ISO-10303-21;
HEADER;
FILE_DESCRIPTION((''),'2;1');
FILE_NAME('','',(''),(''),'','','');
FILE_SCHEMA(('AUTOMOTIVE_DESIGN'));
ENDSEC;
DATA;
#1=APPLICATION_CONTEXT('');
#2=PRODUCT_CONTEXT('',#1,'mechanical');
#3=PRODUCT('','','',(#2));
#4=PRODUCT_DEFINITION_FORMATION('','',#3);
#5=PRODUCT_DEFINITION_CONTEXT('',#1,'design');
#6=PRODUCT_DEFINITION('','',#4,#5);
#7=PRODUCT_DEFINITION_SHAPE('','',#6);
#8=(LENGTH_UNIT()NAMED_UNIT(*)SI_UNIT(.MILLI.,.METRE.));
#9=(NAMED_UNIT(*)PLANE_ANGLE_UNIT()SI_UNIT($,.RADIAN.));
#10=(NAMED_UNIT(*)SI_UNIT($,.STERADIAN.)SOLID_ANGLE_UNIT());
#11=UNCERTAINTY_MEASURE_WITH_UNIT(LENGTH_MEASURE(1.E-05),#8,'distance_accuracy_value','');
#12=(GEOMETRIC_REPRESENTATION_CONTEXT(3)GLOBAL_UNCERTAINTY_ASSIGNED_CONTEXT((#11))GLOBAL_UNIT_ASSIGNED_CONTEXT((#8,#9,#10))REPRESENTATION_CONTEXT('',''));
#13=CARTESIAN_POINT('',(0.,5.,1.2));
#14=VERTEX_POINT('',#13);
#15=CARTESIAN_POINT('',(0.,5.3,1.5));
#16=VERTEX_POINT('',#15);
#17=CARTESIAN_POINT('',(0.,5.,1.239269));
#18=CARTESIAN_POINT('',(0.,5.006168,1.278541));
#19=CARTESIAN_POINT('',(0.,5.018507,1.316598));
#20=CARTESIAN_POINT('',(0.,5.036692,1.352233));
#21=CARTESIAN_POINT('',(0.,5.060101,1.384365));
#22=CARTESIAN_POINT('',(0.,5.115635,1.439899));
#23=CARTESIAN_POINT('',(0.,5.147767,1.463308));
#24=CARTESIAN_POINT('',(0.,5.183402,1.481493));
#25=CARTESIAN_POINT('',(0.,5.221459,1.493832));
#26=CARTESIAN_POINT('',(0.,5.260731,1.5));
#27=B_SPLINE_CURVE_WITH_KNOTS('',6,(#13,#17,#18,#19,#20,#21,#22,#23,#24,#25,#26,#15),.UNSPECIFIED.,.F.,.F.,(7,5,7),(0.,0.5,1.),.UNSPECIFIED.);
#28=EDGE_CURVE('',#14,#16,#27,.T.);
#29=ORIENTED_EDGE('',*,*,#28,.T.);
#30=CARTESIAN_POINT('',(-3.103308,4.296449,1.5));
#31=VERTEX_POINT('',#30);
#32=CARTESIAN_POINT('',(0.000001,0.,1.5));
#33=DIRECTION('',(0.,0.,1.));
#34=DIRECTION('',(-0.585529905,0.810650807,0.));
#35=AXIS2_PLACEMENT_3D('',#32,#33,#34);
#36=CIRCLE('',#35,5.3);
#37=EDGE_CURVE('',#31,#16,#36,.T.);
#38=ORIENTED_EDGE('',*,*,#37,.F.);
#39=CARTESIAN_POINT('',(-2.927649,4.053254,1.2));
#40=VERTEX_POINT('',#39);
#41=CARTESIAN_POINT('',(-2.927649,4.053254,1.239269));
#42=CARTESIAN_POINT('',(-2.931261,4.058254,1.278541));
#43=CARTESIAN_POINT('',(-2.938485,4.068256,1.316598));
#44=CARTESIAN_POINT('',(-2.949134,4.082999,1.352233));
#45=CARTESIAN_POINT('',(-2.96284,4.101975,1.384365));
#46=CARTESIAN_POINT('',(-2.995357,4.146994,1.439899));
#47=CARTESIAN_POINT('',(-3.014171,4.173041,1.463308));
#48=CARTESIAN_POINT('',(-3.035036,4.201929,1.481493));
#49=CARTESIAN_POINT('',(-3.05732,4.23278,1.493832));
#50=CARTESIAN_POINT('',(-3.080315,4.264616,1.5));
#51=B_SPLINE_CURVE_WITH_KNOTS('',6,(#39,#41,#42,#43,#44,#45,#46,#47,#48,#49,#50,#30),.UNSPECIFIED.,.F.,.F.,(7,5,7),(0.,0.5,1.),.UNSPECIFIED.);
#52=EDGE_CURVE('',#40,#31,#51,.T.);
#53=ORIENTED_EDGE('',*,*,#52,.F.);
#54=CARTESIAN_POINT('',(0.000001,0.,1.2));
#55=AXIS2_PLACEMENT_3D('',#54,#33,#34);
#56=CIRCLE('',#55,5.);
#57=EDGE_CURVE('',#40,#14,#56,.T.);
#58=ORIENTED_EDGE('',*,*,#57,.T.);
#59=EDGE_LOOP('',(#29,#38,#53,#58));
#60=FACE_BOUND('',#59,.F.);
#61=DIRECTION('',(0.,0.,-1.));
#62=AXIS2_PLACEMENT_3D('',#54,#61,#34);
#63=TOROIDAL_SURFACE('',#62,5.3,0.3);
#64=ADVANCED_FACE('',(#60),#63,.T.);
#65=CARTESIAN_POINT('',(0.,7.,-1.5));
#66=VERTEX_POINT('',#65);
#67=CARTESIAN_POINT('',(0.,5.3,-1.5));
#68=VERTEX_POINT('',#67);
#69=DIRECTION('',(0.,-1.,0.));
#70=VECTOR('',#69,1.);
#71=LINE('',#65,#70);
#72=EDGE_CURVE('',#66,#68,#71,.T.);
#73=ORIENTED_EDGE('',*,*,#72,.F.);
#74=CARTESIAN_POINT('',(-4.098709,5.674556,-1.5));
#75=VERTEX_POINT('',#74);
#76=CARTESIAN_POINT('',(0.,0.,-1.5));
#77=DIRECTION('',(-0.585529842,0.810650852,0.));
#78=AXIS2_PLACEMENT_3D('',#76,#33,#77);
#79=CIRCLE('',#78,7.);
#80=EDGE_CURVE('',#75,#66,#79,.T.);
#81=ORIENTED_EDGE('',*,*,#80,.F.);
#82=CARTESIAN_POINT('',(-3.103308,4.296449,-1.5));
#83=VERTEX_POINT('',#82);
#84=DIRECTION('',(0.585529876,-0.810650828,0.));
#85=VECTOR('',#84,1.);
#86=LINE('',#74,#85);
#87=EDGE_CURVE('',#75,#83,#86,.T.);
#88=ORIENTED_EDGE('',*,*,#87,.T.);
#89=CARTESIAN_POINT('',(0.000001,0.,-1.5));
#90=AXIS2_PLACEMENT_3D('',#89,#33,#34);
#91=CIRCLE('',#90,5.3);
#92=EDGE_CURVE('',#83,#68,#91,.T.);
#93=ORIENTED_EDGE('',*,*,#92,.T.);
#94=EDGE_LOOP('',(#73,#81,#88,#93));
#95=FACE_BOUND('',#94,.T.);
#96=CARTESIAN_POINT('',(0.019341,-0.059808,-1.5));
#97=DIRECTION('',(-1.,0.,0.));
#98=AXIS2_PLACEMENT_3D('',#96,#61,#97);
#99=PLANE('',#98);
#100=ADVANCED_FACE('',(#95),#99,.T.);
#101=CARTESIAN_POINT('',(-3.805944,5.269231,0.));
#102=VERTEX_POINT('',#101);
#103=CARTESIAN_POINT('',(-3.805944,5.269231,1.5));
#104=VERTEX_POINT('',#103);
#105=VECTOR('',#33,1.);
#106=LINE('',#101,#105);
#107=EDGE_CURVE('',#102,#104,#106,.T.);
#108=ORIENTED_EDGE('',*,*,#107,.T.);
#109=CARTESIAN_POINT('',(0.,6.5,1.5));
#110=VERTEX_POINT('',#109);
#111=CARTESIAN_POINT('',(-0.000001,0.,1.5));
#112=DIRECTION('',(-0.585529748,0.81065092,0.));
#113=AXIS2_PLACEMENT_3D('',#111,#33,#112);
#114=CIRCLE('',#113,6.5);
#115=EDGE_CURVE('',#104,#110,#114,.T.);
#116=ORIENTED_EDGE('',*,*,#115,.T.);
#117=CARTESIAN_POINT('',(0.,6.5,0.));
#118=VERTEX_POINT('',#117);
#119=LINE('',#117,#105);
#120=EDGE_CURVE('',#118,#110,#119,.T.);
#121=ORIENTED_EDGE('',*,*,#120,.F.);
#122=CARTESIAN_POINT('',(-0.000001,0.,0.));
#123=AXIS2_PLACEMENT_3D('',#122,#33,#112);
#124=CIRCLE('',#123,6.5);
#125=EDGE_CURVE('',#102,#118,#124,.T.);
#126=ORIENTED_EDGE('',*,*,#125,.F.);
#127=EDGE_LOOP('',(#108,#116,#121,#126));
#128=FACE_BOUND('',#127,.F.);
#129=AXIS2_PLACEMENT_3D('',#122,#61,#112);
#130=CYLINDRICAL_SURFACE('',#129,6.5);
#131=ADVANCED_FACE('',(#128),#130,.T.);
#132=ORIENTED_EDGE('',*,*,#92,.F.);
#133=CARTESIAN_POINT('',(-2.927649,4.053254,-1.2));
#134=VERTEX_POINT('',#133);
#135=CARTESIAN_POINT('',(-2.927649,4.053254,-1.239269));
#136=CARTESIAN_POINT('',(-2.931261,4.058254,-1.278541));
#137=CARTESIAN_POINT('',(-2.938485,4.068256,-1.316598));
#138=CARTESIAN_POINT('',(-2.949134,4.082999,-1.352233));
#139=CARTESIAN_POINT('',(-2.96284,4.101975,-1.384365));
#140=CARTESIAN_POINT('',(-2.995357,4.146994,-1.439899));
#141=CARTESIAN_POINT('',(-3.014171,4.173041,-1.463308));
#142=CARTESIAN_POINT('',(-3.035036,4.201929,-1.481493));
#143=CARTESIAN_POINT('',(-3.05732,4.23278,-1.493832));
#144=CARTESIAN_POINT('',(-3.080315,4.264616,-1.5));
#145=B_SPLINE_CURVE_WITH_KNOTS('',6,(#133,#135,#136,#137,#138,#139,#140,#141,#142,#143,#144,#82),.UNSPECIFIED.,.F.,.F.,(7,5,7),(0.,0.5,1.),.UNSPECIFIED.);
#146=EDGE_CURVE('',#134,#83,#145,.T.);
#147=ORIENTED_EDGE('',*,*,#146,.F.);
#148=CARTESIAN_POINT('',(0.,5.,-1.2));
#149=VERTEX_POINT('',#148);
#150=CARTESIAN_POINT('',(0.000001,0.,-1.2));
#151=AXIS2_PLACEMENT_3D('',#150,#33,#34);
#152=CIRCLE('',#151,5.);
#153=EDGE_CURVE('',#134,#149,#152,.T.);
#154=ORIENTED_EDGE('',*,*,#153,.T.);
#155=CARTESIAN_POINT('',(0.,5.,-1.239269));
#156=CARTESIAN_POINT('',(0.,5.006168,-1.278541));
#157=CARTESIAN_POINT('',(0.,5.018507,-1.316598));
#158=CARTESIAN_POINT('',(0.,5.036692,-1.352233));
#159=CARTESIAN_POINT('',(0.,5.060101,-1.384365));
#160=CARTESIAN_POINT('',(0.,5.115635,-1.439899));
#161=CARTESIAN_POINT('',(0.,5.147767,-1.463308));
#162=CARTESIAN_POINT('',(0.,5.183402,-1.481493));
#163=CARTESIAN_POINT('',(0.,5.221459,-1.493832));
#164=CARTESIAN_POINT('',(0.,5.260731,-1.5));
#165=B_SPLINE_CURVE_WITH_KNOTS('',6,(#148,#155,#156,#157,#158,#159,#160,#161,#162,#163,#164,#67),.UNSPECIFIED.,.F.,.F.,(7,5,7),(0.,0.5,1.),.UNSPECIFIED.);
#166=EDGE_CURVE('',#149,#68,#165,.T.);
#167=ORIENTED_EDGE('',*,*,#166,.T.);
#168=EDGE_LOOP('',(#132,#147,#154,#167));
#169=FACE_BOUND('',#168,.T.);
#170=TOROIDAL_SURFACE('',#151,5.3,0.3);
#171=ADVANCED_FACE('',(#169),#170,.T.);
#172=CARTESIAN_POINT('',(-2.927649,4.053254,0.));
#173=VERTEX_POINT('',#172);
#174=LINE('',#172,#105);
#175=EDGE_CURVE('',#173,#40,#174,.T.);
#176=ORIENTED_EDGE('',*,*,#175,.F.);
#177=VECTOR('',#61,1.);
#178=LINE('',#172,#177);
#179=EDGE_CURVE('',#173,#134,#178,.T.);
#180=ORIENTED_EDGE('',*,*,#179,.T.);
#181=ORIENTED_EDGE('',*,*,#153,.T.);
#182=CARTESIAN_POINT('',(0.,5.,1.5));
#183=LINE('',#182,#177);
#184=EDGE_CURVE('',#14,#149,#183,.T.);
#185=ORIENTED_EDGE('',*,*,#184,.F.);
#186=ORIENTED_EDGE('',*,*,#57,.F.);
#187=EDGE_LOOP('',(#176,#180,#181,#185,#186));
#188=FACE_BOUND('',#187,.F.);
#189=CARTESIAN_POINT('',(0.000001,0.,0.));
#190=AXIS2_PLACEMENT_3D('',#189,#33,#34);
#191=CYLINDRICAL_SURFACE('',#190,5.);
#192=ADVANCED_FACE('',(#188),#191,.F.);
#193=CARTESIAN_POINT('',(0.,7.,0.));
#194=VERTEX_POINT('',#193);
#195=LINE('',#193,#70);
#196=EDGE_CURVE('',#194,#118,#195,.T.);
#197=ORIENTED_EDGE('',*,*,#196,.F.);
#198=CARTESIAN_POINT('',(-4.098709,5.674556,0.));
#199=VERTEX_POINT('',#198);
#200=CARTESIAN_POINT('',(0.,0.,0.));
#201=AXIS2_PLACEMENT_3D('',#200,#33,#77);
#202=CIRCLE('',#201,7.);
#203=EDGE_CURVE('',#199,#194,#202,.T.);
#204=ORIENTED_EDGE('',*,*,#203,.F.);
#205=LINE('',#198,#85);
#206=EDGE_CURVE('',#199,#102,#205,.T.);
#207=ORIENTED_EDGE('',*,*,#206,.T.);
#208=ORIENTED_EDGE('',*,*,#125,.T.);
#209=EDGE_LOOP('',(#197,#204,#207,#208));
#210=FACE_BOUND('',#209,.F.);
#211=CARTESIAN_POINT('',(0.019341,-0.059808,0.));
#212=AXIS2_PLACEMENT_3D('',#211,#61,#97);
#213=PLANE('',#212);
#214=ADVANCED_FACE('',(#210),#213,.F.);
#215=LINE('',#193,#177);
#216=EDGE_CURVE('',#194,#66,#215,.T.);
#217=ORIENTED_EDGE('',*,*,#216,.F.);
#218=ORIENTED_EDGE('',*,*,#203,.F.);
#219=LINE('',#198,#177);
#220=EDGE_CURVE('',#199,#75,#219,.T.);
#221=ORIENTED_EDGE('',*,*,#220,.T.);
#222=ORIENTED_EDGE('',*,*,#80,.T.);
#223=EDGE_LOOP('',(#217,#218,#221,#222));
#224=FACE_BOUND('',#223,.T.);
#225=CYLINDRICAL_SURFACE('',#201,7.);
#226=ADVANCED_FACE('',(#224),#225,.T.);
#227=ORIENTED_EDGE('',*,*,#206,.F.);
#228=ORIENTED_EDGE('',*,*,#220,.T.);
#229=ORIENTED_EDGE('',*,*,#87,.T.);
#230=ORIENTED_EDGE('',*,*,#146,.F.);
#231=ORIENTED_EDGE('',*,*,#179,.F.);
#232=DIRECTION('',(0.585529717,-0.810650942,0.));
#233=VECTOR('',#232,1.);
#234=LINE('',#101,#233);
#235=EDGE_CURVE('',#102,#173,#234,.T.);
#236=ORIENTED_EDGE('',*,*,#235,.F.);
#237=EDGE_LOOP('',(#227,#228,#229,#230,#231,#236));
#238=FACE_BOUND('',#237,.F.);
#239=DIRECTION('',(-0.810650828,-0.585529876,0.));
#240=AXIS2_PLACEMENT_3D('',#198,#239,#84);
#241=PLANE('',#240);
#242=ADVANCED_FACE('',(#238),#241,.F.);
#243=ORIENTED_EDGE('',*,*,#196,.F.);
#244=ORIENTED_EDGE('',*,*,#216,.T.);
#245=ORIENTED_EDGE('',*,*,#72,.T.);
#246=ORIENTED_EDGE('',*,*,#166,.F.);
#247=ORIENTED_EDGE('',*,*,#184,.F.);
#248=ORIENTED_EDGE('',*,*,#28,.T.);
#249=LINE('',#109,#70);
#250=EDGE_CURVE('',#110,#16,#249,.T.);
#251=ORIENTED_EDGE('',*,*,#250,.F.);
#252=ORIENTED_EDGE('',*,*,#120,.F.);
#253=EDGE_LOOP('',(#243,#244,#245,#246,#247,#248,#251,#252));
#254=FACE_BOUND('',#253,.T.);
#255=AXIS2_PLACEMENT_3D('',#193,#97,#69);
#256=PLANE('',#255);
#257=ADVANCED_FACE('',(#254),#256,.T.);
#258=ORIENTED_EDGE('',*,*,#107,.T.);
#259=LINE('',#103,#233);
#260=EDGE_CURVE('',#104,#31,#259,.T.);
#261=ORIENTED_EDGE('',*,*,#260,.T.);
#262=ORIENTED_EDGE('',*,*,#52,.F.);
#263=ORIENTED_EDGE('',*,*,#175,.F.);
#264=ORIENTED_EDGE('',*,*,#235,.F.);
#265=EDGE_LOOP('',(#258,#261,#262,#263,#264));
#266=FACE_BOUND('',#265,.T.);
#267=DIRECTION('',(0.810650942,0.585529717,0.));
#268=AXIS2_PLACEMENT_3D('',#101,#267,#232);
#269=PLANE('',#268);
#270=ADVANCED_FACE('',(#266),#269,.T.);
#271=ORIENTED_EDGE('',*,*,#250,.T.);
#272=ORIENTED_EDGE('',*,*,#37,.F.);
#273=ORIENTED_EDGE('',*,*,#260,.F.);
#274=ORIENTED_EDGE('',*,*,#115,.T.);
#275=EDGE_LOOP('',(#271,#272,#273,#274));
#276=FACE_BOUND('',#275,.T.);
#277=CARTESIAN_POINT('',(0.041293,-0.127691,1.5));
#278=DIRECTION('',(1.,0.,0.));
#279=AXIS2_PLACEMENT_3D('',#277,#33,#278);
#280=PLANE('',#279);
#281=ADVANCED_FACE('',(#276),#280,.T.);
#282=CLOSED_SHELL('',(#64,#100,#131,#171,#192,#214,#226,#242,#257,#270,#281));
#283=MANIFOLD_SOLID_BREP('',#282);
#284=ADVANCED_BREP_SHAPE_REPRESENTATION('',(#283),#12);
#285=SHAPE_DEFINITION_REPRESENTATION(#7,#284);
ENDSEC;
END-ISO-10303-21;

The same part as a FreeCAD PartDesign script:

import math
import FreeCAD as App
import Part
import Sketcher

V = App.Vector
Q = App.Units.Quantity


def edges_at(feature, points):
    """Names of the edges that pass closest to the given points."""
    edges = feature.Shape.Edges
    near = lambda p: min(range(len(edges)), key=lambda i: edges[i].distToShape(Part.Vertex(*p))[0])
    return sorted({f"Edge{near(p) + 1}" for p in points})

doc = App.newDocument("Part")
body = doc.addObject("PartDesign::Body", "Body")

sketch1 = body.newObject("Sketcher::SketchObject", "Sketch")
sketch1.AttachmentSupport = (doc.getObject("XY_Plane"), [""])
sketch1.MapMode = "FlatFace"
sketch1.addGeometry([
    Part.ArcOfCircle(Part.Circle(V(-0.000001, 0, 0), V(0, 0, 1), 6.5), math.radians(125.840423), math.radians(449.999994)),
    Part.LineSegment(V(0, 6.5, 0), V(0, 5, 0)),
    Part.ArcOfCircle(Part.Circle(V(0.000001, 0, 0), V(0, 0, 1), 5), math.radians(125.840434), math.radians(450.000007)),
    Part.LineSegment(V(-2.927649, 4.053254, 0), V(-3.805944, 5.269231, 0)),
], False)
sketch1.addConstraint([
    Sketcher.Constraint("Coincident", 0, 2, 1, 1),
    Sketcher.Constraint("Coincident", 1, 2, 2, 2),
    Sketcher.Constraint("Coincident", 2, 1, 3, 1),
    Sketcher.Constraint("Coincident", 3, 2, 0, 1),
    Sketcher.Constraint("Vertical", 1),
    Sketcher.Constraint("Coincident", 0, 3, -1, 1),
    Sketcher.Constraint("Coincident", 2, 3, -1, 1),
    Sketcher.Constraint("PointOnObject", 0, 2, -2),
    Sketcher.Constraint("Radius", 2, Q("5 mm")),
    Sketcher.Constraint("Radius", 0, Q("6.5 mm")),
    Sketcher.Constraint("DistanceX", 2, 1, -1, 1, Q("2.927649 mm")),
    Sketcher.Constraint("DistanceY", -1, 1, 3, 2, Q("5.269231 mm")),
])
pad1 = body.newObject("PartDesign::Pad", "Pad")
pad1.Profile = sketch1
pad1.Length = 1.5

sketch2 = body.newObject("Sketcher::SketchObject", "Sketch001")
sketch2.AttachmentSupport = (doc.getObject("XY_Plane"), [""])
sketch2.MapMode = "FlatFace"
sketch2.addGeometry([
    Part.ArcOfCircle(Part.Circle(V(0.000001, 0, 0), V(0, 0, 1), 5), math.radians(125.840434), math.radians(450.000007)),
    Part.LineSegment(V(-2.927649, 4.053254, 0), V(-4.098709, 5.674556, 0)),
    Part.ArcOfCircle(Part.Circle(V(0, 0, 0), V(0, 0, 1), 7), math.radians(125.84043), math.radians(449.999998)),
    Part.LineSegment(V(0, 7, 0), V(0, 5, 0)),
], False)
sketch2.addConstraint([
    Sketcher.Constraint("Coincident", 0, 1, 1, 1),
    Sketcher.Constraint("Coincident", 1, 2, 2, 1),
    Sketcher.Constraint("Coincident", 2, 2, 3, 1),
    Sketcher.Constraint("Coincident", 3, 2, 0, 2),
    Sketcher.Constraint("Vertical", 3),
    Sketcher.Constraint("Coincident", 0, 3, -1, 1),
    Sketcher.Constraint("Coincident", 2, 3, -1, 1),
    Sketcher.Constraint("PointOnObject", 2, 2, -2),
    Sketcher.Constraint("Radius", 0, Q("5 mm")),
    Sketcher.Constraint("Radius", 2, Q("7 mm")),
    Sketcher.Constraint("DistanceX", 0, 1, -1, 1, Q("2.927649 mm")),
    Sketcher.Constraint("DistanceX", 1, 2, -1, 1, Q("4.098709 mm")),
])
pad2 = body.newObject("PartDesign::Pad", "Pad001")
pad2.Profile = sketch2
pad2.Length = 1.5
pad2.Reversed = True
doc.recompute()

fillet = body.newObject("PartDesign::Fillet", "Fillet")
fillet.Base = (pad2, edges_at(pad2, [(1.538, -4.757, 1.5)]))
fillet.Radius = 0.3
doc.recompute()

fillet2 = body.newObject("PartDesign::Fillet", "Fillet001")
fillet2.Base = (fillet, edges_at(fillet, [(1.538, -4.757, -1.5)]))
fillet2.Radius = 0.3

doc.recompute()
